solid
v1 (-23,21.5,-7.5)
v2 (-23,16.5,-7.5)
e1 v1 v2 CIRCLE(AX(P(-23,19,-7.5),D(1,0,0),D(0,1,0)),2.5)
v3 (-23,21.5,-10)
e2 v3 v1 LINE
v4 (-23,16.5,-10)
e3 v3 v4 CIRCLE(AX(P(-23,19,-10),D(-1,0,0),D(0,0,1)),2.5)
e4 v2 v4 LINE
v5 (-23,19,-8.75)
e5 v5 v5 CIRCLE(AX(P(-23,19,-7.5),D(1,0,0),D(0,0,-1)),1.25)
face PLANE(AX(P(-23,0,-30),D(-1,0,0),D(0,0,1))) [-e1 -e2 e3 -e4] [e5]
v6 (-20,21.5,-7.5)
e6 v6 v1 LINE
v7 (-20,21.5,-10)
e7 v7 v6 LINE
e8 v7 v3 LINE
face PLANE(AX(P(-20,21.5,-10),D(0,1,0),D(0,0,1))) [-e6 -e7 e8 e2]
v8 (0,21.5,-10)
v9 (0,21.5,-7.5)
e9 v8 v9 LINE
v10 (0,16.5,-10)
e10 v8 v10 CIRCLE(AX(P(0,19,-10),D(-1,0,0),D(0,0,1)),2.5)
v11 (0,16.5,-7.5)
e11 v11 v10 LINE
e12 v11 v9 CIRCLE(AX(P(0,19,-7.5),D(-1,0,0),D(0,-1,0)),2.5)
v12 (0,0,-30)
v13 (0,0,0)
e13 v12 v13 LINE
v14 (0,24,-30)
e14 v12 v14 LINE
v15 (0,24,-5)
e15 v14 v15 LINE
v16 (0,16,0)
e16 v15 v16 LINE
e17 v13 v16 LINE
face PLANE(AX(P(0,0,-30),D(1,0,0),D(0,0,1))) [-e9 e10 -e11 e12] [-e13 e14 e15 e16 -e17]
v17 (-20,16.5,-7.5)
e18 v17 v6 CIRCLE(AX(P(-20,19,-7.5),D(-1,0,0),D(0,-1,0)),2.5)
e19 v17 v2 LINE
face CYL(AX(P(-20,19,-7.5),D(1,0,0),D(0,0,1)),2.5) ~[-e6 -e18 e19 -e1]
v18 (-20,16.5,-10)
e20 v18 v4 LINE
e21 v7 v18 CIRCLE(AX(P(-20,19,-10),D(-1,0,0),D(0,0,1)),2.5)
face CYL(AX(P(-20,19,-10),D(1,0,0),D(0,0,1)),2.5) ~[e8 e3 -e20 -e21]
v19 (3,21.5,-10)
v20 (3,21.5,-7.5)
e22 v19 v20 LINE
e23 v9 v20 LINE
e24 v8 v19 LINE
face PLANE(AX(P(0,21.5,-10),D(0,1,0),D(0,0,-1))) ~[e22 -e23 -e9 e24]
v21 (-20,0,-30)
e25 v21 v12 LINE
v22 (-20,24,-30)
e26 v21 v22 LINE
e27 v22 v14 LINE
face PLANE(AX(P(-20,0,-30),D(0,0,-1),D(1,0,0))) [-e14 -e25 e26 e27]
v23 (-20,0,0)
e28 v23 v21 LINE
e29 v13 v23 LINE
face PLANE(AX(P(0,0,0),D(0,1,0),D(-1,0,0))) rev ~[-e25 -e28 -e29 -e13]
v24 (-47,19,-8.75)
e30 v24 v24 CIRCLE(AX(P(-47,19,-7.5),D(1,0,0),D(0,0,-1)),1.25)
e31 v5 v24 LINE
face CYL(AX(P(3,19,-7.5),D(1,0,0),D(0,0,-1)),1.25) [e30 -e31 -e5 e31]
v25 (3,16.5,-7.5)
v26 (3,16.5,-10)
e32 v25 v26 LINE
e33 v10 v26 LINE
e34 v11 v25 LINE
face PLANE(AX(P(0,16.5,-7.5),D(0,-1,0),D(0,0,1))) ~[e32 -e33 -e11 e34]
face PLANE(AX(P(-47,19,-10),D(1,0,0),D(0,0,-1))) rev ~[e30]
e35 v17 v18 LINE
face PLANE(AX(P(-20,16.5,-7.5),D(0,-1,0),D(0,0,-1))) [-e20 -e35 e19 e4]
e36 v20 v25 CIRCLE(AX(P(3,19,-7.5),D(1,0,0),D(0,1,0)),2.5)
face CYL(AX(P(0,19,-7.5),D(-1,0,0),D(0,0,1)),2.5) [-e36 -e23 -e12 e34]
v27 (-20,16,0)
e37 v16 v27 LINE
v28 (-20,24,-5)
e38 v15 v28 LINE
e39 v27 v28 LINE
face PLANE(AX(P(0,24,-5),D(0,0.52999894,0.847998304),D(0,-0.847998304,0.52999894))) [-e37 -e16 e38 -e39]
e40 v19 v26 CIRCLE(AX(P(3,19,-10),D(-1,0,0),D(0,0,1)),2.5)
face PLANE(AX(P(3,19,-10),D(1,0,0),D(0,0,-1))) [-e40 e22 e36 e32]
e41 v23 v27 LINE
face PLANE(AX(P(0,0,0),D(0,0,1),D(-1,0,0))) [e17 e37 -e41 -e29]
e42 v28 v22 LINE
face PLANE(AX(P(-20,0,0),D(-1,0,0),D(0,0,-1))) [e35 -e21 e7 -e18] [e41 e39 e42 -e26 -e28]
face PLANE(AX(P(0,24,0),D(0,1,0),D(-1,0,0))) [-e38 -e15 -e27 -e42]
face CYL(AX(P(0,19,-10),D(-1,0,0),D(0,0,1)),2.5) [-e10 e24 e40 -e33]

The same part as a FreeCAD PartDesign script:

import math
import FreeCAD as App
import Part
import Sketcher

V = App.Vector

doc = App.newDocument("Part")
params = doc.addObject("Spreadsheet::Sheet", "Params")
for row, (alias, value) in enumerate([
    ("sketch1_width", "20 mm"),
    ("sketch1_height", "30 mm"),
    ("pad1_length", "24 mm"),
    ("sketch2_width", "8 mm"),
    ("sketch2_height", "5 mm"),
    ("sketch3_radius", "2.5 mm"),
    ("sketch3_height", "2.5 mm"),
    ("pad2_length", "3 mm"),
    ("sketch4_diameter", "2.5 mm"),
    ("pad3_length", "50 mm"),
], start=1):
    params.set(f"A{row}", alias)
    params.set(f"B{row}", "=" + value)
    params.setAlias(f"B{row}", alias)

body = doc.addObject("PartDesign::Body", "Body")

sketch1 = doc.addObject("Sketcher::SketchObject", "Sketch")
body.addObject(sketch1)
sketch1.AttachmentSupport = (doc.XZ_Plane, [""])
sketch1.MapMode = "FlatFace"
sketch1.addGeometry(Part.LineSegment(V(-20, 0, 0), V(0, 0, 0)), False)
sketch1.addGeometry(Part.LineSegment(V(0, 0, 0), V(0, -30, 0)), False)
sketch1.addGeometry(Part.LineSegment(V(0, -30, 0), V(-20, -30, 0)), False)
sketch1.addGeometry(Part.LineSegment(V(-20, -30, 0), V(-20, 0, 0)), False)
sketch1.addConstraint(Sketcher.Constraint("Coincident", 0, 2, 1, 1))
sketch1.addConstraint(Sketcher.Constraint("Coincident", 1, 2, 2, 1))
sketch1.addConstraint(Sketcher.Constraint("Coincident", 2, 2, 3, 1))
sketch1.addConstraint(Sketcher.Constraint("Coincident", 3, 2, 0, 1))
sketch1.addConstraint(Sketcher.Constraint("Horizontal", 0))
sketch1.addConstraint(Sketcher.Constraint("Vertical", 1))
sketch1.addConstraint(Sketcher.Constraint("Horizontal", 2))
sketch1.addConstraint(Sketcher.Constraint("Vertical", 3))
sketch1.addConstraint(Sketcher.Constraint("Coincident", 0, 2, -1, 1))
sketch1.addConstraint(Sketcher.Constraint("DistanceX", 0, 1, 0, 2, 20.0))
sketch1.addConstraint(Sketcher.Constraint("DistanceY", 1, 2, 1, 1, 30.0))
sketch1.setExpression("Constraints[9]", "Params.sketch1_width")
sketch1.setExpression("Constraints[10]", "Params.sketch1_height")
pad1 = doc.addObject("PartDesign::Pad", "Pad")
body.addObject(pad1)
pad1.Profile = sketch1
pad1.setExpression("Length", "Params.pad1_length")
pad1.Reversed = True

sketch2 = doc.addObject("Sketcher::SketchObject", "Sketch001")
body.addObject(sketch2)
sketch2.AttachmentSupport = (doc.YZ_Plane, [""])
sketch2.MapMode = "FlatFace"
sketch2.addGeometry(Part.LineSegment(V(24, 0, 0), V(16, 0, 0)), False)
sketch2.addGeometry(Part.LineSegment(V(16, 0, 0), V(24, -5, 0)), False)
sketch2.addGeometry(Part.LineSegment(V(24, -5, 0), V(24, 0, 0)), False)
sketch2.addConstraint(Sketcher.Constraint("Coincident", 0, 2, 1, 1))
sketch2.addConstraint(Sketcher.Constraint("Coincident", 1, 2, 2, 1))
sketch2.addConstraint(Sketcher.Constraint("Coincident", 2, 2, 0, 1))
sketch2.addConstraint(Sketcher.Constraint("Horizontal", 0))
sketch2.addConstraint(Sketcher.Constraint("Vertical", 2))
sketch2.addConstraint(Sketcher.Constraint("PointOnObject", 0, 2, -1))
sketch2.addConstraint(Sketcher.Constraint("DistanceX", 0, 2, 0, 1, 8.0))
sketch2.addConstraint(Sketcher.Constraint("DistanceY", 2, 1, 2, 2, 5.0))
sketch2.addConstraint(Sketcher.Constraint("DistanceX", -1, 1, 0, 2, 16.0))
sketch2.setExpression("Constraints[6]", "Params.sketch2_width")
sketch2.setExpression("Constraints[7]", "Params.sketch2_height")
pocket1 = doc.addObject("PartDesign::Pocket", "Pocket")
body.addObject(pocket1)
pocket1.Profile = sketch2
pocket1.Type = "ThroughAll"

sketch3 = doc.addObject("Sketcher::SketchObject", "Sketch002")
body.addObject(sketch3)
sketch3.AttachmentSupport = (doc.YZ_Plane, [""])
sketch3.MapMode = "FlatFace"
sketch3.AttachmentOffset = App.Placement(V(0, 0, -20), App.Rotation())
sketch3.addGeometry(Part.ArcOfCircle(Part.Circle(V(19, -7.5, 0), V(0, 0, 1), 2.5), math.radians(0), math.radians(180)), False)
sketch3.addGeometry(Part.LineSegment(V(21.5, -7.5, 0), V(21.5, -10, 0)), False)
sketch3.addGeometry(Part.ArcOfCircle(Part.Circle(V(19, -10, 0), V(0, 0, 1), 2.5), math.radians(180), math.radians(360)), False)
sketch3.addGeometry(Part.LineSegment(V(16.5, -10, 0), V(16.5, -7.5, 0)), False)
sketch3.addConstraint(Sketcher.Constraint("Tangent", 0, 1, 1, 1))
sketch3.addConstraint(Sketcher.Constraint("Tangent", 1, 2, 2, 2))
sketch3.addConstraint(Sketcher.Constraint("Tangent", 2, 1, 3, 1))
sketch3.addConstraint(Sketcher.Constraint("Tangent", 3, 2, 0, 2))
sketch3.addConstraint(Sketcher.Constraint("Vertical", 1))
sketch3.addConstraint(Sketcher.Constraint("Vertical", 3))
sketch3.addConstraint(Sketcher.Constraint("Radius", 0, 2.5))
sketch3.addConstraint(Sketcher.Constraint("DistanceY", 0, 3, -1, 1, 7.5))
sketch3.addConstraint(Sketcher.Constraint("DistanceY", 1, 2, 1, 1, 2.5))
sketch3.addConstraint(Sketcher.Constraint("DistanceX", -1, 1, 0, 3, 19.0))
sketch3.setExpression("Constraints[6]", "Params.sketch3_radius")
sketch3.setExpression("Constraints[8]", "Params.sketch3_height")
pad2 = doc.addObject("PartDesign::Pad", "Pad001")
body.addObject(pad2)
pad2.Profile = sketch3
pad2.setExpression("Length", "Params.pad2_length")
pad2.Reversed = True
doc.recompute()

datumplane = doc.addObject("PartDesign::Plane", "DatumPlane")
body.addObject(datumplane)
datumplane.AttachmentSupport = (doc.YZ_Plane, [""])
datumplane.MapMode = "FlatFace"
datumplane.AttachmentOffset = App.Placement(V(0, 0, -10), App.Rotation())
mirrored = doc.addObject("PartDesign::Mirrored", "Mirrored")
body.addObject(mirrored)
mirrored.Originals = [pad2]
mirrored.MirrorPlane = (datumplane, [""])
body.Tip = mirrored

sketch4 = doc.addObject("Sketcher::SketchObject", "Sketch003")
body.addObject(sketch4)
sketch4.AttachmentSupport = (doc.YZ_Plane, [""])
sketch4.MapMode = "FlatFace"
sketch4.AttachmentOffset = App.Placement(V(0, 0, 3), App.Rotation())
sketch4.addGeometry(Part.Circle(V(19, -7.5, 0), V(0, 0, 1), 1.2), False)
sketch4.addConstraint(Sketcher.Constraint("Diameter", 0, 2.5))
sketch4.addConstraint(Sketcher.Constraint("DistanceX", -1, 1, 0, 3, 19.0))
sketch4.addConstraint(Sketcher.Constraint("DistanceY", 0, 3, -1, 1, 7.5))
sketch4.setExpression("Constraints[0]", "Params.sketch4_diameter")
pad3 = doc.addObject("PartDesign::Pad", "Pad002")
body.addObject(pad3)
pad3.Profile = sketch4
pad3.setExpression("Length", "Params.pad3_length")
pad3.Reversed = True

doc.recompute()
